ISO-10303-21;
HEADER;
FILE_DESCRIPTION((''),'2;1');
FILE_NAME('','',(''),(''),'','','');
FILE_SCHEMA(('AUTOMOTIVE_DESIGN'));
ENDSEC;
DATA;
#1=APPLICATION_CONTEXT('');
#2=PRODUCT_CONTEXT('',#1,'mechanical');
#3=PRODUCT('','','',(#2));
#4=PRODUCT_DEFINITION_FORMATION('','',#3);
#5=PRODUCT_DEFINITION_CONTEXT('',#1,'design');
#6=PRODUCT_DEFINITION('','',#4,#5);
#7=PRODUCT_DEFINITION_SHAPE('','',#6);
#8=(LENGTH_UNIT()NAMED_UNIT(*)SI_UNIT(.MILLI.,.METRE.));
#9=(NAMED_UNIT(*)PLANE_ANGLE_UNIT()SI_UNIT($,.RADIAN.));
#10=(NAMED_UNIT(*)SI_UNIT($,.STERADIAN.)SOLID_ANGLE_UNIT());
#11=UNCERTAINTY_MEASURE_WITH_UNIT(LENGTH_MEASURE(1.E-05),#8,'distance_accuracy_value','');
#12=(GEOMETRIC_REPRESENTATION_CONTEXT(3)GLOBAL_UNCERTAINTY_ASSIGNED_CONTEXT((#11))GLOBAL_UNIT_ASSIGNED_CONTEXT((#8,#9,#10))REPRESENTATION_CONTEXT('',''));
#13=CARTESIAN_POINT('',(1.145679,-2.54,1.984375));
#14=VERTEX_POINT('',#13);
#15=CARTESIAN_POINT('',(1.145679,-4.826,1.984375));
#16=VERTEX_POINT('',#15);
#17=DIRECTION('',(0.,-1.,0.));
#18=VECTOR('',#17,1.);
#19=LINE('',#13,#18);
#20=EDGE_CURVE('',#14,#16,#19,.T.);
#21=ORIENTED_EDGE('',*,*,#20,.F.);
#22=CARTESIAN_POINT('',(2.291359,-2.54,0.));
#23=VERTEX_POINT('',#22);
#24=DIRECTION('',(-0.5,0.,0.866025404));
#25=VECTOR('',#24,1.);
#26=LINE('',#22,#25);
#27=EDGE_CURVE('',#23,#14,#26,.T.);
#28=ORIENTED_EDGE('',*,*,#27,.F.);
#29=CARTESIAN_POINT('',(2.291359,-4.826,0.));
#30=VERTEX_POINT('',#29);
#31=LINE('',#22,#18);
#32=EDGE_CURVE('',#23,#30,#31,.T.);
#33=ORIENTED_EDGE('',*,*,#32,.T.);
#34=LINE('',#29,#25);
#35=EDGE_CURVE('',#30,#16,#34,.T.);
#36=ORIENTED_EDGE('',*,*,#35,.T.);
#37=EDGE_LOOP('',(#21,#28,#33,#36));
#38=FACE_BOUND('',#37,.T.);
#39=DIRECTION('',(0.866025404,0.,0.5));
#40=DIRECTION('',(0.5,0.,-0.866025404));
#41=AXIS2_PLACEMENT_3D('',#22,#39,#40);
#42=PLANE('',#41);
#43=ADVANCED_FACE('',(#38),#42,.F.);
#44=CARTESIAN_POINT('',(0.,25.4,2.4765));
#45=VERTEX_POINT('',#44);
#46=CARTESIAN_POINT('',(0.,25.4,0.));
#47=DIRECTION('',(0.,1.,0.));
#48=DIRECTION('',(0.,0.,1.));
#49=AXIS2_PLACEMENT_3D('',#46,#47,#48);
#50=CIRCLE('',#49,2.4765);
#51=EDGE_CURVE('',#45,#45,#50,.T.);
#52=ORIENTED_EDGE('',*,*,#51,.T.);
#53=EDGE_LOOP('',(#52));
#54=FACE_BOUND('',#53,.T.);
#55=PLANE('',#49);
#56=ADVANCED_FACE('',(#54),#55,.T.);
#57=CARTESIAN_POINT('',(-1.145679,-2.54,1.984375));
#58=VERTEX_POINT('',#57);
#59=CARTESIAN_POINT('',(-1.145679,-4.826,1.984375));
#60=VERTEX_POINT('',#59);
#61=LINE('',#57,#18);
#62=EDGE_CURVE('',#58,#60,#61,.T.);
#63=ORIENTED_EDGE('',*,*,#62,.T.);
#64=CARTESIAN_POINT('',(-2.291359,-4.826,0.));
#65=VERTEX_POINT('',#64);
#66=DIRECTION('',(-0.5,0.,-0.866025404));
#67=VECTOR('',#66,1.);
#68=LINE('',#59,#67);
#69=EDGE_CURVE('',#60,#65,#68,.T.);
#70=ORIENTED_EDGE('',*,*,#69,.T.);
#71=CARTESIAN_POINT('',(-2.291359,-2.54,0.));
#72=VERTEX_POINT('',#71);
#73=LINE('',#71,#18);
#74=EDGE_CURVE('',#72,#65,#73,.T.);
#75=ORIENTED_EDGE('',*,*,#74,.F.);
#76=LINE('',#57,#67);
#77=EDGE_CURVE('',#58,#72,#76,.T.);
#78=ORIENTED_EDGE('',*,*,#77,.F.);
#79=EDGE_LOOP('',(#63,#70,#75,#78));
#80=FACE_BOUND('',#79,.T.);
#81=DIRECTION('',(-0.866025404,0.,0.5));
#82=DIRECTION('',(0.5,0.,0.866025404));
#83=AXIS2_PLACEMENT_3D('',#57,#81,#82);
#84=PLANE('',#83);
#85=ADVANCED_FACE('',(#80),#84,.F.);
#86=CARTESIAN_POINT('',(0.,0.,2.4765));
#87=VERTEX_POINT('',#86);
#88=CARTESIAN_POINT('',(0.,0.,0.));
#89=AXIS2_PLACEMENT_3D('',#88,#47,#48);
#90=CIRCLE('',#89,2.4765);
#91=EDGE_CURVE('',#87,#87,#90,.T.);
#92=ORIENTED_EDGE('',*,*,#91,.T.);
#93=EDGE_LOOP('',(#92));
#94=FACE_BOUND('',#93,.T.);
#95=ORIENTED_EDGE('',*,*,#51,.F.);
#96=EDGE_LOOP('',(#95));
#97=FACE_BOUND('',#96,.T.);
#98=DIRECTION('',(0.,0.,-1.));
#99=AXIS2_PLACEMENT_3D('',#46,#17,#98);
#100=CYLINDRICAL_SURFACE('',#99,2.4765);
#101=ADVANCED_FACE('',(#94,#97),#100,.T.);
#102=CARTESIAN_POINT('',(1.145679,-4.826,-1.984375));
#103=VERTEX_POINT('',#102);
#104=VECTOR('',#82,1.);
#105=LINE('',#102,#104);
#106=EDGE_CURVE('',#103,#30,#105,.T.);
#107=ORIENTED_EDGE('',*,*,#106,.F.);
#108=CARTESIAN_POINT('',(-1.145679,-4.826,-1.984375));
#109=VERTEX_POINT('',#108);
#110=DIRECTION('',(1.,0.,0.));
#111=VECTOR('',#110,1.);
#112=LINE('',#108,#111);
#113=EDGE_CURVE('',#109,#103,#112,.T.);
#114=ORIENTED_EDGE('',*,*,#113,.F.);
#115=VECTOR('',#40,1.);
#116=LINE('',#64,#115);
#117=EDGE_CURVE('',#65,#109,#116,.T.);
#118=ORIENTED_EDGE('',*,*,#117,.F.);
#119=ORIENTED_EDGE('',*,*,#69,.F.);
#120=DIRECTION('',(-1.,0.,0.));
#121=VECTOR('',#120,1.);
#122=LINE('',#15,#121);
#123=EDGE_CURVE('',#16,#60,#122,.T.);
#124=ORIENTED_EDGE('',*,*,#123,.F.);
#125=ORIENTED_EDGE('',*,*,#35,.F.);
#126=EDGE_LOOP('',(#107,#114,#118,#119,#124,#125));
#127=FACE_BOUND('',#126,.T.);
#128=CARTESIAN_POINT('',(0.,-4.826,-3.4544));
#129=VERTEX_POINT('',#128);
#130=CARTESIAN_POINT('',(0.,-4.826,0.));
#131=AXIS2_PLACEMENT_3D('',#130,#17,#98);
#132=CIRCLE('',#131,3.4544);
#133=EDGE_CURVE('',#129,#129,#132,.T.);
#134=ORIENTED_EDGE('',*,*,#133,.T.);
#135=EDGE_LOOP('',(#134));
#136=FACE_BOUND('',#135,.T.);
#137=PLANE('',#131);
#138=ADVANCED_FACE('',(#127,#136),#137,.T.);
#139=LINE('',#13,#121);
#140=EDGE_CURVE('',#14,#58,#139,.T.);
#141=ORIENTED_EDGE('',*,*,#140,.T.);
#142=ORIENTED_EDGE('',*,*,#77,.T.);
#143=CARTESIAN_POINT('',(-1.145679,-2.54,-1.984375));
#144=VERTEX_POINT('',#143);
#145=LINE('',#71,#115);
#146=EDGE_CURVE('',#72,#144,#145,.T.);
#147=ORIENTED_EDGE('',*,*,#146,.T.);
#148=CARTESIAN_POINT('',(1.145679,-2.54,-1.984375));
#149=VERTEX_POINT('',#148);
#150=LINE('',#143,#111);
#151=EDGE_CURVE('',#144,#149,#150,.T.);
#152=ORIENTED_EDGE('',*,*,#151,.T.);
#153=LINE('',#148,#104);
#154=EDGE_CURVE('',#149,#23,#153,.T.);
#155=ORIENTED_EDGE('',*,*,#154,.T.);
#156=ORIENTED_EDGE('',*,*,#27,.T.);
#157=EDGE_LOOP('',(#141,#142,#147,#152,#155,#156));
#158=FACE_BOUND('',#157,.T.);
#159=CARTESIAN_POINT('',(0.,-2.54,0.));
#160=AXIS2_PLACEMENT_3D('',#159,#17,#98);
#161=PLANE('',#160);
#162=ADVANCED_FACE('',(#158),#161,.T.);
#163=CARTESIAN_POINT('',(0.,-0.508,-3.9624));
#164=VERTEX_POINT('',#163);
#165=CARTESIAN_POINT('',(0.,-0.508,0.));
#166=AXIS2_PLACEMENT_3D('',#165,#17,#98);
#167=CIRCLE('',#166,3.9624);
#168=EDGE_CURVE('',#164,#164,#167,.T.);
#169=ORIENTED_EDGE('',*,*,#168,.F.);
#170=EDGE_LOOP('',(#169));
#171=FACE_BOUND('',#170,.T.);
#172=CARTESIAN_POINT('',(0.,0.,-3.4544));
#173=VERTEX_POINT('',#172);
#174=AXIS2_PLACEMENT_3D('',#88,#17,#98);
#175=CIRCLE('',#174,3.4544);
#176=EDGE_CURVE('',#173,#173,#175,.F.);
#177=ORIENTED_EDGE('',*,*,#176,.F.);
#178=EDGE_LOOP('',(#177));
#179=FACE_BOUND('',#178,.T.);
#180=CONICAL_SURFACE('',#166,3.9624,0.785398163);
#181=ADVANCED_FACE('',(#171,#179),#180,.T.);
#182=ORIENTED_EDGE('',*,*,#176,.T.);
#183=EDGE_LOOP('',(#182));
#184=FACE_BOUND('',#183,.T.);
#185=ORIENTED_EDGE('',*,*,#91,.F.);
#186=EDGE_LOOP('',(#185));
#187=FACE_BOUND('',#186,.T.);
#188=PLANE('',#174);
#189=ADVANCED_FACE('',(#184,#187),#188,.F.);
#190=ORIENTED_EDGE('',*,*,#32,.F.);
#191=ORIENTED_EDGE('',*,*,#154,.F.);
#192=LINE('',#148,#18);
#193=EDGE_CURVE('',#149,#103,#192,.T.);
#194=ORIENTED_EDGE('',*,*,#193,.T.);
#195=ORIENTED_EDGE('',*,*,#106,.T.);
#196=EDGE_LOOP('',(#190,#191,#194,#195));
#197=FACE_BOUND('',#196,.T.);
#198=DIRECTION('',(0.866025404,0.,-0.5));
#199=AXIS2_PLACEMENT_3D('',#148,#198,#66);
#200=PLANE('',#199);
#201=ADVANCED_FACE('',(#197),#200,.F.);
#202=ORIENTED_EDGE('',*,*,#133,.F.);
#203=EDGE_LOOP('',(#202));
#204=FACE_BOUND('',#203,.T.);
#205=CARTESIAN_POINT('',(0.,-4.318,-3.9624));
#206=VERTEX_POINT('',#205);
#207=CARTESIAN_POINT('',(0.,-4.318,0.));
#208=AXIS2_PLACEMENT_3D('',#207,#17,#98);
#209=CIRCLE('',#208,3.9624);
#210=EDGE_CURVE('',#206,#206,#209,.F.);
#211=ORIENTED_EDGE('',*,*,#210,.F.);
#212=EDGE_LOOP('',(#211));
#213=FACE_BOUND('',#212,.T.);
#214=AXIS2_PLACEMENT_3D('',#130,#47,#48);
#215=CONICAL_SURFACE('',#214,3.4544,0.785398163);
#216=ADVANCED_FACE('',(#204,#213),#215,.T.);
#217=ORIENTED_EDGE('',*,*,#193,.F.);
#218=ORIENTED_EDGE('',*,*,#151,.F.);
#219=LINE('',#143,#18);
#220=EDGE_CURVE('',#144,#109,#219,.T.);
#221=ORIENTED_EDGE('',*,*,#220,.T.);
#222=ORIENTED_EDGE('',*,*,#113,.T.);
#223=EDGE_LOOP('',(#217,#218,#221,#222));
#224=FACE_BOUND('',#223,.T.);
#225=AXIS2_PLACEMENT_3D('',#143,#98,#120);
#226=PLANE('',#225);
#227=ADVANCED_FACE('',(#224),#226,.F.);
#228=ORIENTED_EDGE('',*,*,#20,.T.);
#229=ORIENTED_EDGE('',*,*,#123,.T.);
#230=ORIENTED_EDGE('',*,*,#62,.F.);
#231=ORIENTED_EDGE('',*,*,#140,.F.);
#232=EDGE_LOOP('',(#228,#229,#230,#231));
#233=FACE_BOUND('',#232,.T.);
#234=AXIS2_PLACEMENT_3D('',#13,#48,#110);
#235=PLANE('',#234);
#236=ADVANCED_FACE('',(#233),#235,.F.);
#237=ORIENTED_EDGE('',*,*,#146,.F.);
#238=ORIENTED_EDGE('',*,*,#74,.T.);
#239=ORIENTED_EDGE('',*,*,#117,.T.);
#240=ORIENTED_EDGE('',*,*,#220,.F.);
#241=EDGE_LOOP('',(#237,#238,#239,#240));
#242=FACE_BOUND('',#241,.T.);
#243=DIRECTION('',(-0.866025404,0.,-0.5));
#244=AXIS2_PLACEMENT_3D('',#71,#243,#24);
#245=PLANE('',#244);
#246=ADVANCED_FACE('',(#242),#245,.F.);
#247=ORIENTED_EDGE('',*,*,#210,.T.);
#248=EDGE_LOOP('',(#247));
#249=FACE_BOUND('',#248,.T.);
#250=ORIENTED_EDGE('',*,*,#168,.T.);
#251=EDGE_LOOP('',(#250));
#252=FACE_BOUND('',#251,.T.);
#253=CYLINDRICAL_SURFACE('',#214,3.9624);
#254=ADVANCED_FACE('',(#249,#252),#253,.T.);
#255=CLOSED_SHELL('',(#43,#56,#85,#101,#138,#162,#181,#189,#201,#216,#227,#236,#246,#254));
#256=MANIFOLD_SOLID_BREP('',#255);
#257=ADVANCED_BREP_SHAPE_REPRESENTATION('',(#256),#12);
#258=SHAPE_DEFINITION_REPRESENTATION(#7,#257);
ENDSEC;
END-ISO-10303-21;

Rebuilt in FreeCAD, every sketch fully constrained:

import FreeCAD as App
import Part
import Sketcher
from FreeCAD import Vector
Q = App.Units.Quantity


def edges_at(feature, points):
    """Names of the edges that pass closest to the given points."""
    edges = feature.Shape.Edges
    near = lambda p: min(range(len(edges)), key=lambda i: edges[i].distToShape(Part.Vertex(*p))[0])
    return sorted({f"Edge{near(p) + 1}" for p in points})


def add_polygon(sketch, points):
    """Adds a closed chain of lines whose ends are joined by coincident constraints."""
    first, n = sketch.GeometryCount, len(points)
    for a, b in zip(points, points[1:] + points[:1]):
        sketch.addGeometry(Part.LineSegment(App.Vector(*a, 0), App.Vector(*b, 0)), False)
    for i in range(n):
        sketch.addConstraint(Sketcher.Constraint("Coincident", first + i, 2, first + (i + 1) % n, 1))

doc = App.newDocument("Part")
params = doc.addObject("Spreadsheet::Sheet", "Params")
for row, (alias, value) in enumerate([
    ("sketch1_diameter", "0.195 in"),
    ("pad1_length", "1 in"),
    ("sketch2_diameter", "0.312 in"),
    ("pad2_length", "0.19 in"),
    ("pocket1_length", "0.09 in"),
    ("chamfer_size", "0.02 in"),
], start=1):
    params.set(f"A{row}", alias)
    params.set(f"B{row}", "=" + value)
    params.setAlias(f"B{row}", alias)

body = doc.addObject("PartDesign::Body", "Body")

# Sketch on XZ plane
sketch1 = body.newObject("Sketcher::SketchObject", "Sketch")
sketch1.AttachmentSupport = (doc.getObject("XZ_Plane"), [""])
sketch1.MapMode = "FlatFace"
sketch1.addGeometry(Part.Circle(Vector(0, 0, 0), Vector(0, 0, 1), 2.5), False)
sketch1.addConstraint(Sketcher.Constraint("Coincident", 0, 3, -1, 1))
sketch1.addConstraint(Sketcher.Constraint("Diameter", 0, Q("0.195 in")))
sketch1.setExpression("Constraints[1]", "Params.sketch1_diameter")
pad1 = body.newObject("PartDesign::Pad", "Pad")
pad1.Profile = sketch1
pad1.setExpression("Length", "Params.pad1_length")
pad1.Reversed = True

# Sketch on XZ plane
sketch2 = body.newObject("Sketcher::SketchObject", "Sketch001")
sketch2.AttachmentSupport = (doc.getObject("XZ_Plane"), [""])
sketch2.MapMode = "FlatFace"
sketch2.addGeometry(Part.Circle(Vector(0, 0, 0), Vector(0, 0, 1), 4), False)
sketch2.addConstraint(Sketcher.Constraint("Coincident", 0, 3, -1, 1))
sketch2.addConstraint(Sketcher.Constraint("Diameter", 0, Q("0.312 in")))
sketch2.setExpression("Constraints[1]", "Params.sketch2_diameter")
pad2 = body.newObject("PartDesign::Pad", "Pad001")
pad2.Profile = sketch2
pad2.setExpression("Length", "Params.pad2_length")

# Sketch on XZ plane
sketch3 = body.newObject("Sketcher::SketchObject", "Sketch002")
sketch3.AttachmentSupport = (doc.getObject("XZ_Plane"), [""])
sketch3.MapMode = "FlatFace"
sketch3.AttachmentOffset = App.Placement(Vector(0, 0, 0.19 * 25.4), App.Rotation())
add_polygon(sketch3, [(2.3, 0), (1.1, 2), (-1.1, 2), (-2.3, 0), (-1.1, -2), (1.1, -2)])  # lines 0-5
sketch3.addConstraint(Sketcher.Constraint("Horizontal", 1))
sketch3.addConstraint(Sketcher.Constraint("Horizontal", 4))
sketch3.addConstraint(Sketcher.Constraint("Symmetric", 0, 2, 3, 2, -1, 1))
sketch3.addConstraint(Sketcher.Constraint("Symmetric", 2, 2, 5, 2, -1, 1))
sketch3.addConstraint(Sketcher.Constraint("PointOnObject", 2, 2, -1))
sketch3.addConstraint(Sketcher.Constraint("Parallel", 2, 5))
sketch3.addConstraint(Sketcher.Constraint("Vertical", 1, 2, 3, 2))
sketch3.addConstraint(Sketcher.Constraint("Angle", 0, Q("120 deg")))
sketch3.addConstraint(Sketcher.Constraint("DistanceY", -1, 1, 0, 2, Q("0.078125 in")))
sketch3.addConstraint(Sketcher.Constraint("DistanceX", 1, 2, 1, 1, 2.291359))
pocket1 = body.newObject("PartDesign::Pocket", "Pocket")
pocket1.Profile = sketch3
pocket1.setExpression("Length", "Params.pocket1_length")
doc.recompute()

chamfer = body.newObject("PartDesign::Chamfer", "Chamfer")
chamfer.Base = (pocket1, edges_at(pocket1, [(0, 0, 3.962), (0, -4.826, 3.962)]))
chamfer.setExpression("Size", "Params.chamfer_size")

doc.recompute()
